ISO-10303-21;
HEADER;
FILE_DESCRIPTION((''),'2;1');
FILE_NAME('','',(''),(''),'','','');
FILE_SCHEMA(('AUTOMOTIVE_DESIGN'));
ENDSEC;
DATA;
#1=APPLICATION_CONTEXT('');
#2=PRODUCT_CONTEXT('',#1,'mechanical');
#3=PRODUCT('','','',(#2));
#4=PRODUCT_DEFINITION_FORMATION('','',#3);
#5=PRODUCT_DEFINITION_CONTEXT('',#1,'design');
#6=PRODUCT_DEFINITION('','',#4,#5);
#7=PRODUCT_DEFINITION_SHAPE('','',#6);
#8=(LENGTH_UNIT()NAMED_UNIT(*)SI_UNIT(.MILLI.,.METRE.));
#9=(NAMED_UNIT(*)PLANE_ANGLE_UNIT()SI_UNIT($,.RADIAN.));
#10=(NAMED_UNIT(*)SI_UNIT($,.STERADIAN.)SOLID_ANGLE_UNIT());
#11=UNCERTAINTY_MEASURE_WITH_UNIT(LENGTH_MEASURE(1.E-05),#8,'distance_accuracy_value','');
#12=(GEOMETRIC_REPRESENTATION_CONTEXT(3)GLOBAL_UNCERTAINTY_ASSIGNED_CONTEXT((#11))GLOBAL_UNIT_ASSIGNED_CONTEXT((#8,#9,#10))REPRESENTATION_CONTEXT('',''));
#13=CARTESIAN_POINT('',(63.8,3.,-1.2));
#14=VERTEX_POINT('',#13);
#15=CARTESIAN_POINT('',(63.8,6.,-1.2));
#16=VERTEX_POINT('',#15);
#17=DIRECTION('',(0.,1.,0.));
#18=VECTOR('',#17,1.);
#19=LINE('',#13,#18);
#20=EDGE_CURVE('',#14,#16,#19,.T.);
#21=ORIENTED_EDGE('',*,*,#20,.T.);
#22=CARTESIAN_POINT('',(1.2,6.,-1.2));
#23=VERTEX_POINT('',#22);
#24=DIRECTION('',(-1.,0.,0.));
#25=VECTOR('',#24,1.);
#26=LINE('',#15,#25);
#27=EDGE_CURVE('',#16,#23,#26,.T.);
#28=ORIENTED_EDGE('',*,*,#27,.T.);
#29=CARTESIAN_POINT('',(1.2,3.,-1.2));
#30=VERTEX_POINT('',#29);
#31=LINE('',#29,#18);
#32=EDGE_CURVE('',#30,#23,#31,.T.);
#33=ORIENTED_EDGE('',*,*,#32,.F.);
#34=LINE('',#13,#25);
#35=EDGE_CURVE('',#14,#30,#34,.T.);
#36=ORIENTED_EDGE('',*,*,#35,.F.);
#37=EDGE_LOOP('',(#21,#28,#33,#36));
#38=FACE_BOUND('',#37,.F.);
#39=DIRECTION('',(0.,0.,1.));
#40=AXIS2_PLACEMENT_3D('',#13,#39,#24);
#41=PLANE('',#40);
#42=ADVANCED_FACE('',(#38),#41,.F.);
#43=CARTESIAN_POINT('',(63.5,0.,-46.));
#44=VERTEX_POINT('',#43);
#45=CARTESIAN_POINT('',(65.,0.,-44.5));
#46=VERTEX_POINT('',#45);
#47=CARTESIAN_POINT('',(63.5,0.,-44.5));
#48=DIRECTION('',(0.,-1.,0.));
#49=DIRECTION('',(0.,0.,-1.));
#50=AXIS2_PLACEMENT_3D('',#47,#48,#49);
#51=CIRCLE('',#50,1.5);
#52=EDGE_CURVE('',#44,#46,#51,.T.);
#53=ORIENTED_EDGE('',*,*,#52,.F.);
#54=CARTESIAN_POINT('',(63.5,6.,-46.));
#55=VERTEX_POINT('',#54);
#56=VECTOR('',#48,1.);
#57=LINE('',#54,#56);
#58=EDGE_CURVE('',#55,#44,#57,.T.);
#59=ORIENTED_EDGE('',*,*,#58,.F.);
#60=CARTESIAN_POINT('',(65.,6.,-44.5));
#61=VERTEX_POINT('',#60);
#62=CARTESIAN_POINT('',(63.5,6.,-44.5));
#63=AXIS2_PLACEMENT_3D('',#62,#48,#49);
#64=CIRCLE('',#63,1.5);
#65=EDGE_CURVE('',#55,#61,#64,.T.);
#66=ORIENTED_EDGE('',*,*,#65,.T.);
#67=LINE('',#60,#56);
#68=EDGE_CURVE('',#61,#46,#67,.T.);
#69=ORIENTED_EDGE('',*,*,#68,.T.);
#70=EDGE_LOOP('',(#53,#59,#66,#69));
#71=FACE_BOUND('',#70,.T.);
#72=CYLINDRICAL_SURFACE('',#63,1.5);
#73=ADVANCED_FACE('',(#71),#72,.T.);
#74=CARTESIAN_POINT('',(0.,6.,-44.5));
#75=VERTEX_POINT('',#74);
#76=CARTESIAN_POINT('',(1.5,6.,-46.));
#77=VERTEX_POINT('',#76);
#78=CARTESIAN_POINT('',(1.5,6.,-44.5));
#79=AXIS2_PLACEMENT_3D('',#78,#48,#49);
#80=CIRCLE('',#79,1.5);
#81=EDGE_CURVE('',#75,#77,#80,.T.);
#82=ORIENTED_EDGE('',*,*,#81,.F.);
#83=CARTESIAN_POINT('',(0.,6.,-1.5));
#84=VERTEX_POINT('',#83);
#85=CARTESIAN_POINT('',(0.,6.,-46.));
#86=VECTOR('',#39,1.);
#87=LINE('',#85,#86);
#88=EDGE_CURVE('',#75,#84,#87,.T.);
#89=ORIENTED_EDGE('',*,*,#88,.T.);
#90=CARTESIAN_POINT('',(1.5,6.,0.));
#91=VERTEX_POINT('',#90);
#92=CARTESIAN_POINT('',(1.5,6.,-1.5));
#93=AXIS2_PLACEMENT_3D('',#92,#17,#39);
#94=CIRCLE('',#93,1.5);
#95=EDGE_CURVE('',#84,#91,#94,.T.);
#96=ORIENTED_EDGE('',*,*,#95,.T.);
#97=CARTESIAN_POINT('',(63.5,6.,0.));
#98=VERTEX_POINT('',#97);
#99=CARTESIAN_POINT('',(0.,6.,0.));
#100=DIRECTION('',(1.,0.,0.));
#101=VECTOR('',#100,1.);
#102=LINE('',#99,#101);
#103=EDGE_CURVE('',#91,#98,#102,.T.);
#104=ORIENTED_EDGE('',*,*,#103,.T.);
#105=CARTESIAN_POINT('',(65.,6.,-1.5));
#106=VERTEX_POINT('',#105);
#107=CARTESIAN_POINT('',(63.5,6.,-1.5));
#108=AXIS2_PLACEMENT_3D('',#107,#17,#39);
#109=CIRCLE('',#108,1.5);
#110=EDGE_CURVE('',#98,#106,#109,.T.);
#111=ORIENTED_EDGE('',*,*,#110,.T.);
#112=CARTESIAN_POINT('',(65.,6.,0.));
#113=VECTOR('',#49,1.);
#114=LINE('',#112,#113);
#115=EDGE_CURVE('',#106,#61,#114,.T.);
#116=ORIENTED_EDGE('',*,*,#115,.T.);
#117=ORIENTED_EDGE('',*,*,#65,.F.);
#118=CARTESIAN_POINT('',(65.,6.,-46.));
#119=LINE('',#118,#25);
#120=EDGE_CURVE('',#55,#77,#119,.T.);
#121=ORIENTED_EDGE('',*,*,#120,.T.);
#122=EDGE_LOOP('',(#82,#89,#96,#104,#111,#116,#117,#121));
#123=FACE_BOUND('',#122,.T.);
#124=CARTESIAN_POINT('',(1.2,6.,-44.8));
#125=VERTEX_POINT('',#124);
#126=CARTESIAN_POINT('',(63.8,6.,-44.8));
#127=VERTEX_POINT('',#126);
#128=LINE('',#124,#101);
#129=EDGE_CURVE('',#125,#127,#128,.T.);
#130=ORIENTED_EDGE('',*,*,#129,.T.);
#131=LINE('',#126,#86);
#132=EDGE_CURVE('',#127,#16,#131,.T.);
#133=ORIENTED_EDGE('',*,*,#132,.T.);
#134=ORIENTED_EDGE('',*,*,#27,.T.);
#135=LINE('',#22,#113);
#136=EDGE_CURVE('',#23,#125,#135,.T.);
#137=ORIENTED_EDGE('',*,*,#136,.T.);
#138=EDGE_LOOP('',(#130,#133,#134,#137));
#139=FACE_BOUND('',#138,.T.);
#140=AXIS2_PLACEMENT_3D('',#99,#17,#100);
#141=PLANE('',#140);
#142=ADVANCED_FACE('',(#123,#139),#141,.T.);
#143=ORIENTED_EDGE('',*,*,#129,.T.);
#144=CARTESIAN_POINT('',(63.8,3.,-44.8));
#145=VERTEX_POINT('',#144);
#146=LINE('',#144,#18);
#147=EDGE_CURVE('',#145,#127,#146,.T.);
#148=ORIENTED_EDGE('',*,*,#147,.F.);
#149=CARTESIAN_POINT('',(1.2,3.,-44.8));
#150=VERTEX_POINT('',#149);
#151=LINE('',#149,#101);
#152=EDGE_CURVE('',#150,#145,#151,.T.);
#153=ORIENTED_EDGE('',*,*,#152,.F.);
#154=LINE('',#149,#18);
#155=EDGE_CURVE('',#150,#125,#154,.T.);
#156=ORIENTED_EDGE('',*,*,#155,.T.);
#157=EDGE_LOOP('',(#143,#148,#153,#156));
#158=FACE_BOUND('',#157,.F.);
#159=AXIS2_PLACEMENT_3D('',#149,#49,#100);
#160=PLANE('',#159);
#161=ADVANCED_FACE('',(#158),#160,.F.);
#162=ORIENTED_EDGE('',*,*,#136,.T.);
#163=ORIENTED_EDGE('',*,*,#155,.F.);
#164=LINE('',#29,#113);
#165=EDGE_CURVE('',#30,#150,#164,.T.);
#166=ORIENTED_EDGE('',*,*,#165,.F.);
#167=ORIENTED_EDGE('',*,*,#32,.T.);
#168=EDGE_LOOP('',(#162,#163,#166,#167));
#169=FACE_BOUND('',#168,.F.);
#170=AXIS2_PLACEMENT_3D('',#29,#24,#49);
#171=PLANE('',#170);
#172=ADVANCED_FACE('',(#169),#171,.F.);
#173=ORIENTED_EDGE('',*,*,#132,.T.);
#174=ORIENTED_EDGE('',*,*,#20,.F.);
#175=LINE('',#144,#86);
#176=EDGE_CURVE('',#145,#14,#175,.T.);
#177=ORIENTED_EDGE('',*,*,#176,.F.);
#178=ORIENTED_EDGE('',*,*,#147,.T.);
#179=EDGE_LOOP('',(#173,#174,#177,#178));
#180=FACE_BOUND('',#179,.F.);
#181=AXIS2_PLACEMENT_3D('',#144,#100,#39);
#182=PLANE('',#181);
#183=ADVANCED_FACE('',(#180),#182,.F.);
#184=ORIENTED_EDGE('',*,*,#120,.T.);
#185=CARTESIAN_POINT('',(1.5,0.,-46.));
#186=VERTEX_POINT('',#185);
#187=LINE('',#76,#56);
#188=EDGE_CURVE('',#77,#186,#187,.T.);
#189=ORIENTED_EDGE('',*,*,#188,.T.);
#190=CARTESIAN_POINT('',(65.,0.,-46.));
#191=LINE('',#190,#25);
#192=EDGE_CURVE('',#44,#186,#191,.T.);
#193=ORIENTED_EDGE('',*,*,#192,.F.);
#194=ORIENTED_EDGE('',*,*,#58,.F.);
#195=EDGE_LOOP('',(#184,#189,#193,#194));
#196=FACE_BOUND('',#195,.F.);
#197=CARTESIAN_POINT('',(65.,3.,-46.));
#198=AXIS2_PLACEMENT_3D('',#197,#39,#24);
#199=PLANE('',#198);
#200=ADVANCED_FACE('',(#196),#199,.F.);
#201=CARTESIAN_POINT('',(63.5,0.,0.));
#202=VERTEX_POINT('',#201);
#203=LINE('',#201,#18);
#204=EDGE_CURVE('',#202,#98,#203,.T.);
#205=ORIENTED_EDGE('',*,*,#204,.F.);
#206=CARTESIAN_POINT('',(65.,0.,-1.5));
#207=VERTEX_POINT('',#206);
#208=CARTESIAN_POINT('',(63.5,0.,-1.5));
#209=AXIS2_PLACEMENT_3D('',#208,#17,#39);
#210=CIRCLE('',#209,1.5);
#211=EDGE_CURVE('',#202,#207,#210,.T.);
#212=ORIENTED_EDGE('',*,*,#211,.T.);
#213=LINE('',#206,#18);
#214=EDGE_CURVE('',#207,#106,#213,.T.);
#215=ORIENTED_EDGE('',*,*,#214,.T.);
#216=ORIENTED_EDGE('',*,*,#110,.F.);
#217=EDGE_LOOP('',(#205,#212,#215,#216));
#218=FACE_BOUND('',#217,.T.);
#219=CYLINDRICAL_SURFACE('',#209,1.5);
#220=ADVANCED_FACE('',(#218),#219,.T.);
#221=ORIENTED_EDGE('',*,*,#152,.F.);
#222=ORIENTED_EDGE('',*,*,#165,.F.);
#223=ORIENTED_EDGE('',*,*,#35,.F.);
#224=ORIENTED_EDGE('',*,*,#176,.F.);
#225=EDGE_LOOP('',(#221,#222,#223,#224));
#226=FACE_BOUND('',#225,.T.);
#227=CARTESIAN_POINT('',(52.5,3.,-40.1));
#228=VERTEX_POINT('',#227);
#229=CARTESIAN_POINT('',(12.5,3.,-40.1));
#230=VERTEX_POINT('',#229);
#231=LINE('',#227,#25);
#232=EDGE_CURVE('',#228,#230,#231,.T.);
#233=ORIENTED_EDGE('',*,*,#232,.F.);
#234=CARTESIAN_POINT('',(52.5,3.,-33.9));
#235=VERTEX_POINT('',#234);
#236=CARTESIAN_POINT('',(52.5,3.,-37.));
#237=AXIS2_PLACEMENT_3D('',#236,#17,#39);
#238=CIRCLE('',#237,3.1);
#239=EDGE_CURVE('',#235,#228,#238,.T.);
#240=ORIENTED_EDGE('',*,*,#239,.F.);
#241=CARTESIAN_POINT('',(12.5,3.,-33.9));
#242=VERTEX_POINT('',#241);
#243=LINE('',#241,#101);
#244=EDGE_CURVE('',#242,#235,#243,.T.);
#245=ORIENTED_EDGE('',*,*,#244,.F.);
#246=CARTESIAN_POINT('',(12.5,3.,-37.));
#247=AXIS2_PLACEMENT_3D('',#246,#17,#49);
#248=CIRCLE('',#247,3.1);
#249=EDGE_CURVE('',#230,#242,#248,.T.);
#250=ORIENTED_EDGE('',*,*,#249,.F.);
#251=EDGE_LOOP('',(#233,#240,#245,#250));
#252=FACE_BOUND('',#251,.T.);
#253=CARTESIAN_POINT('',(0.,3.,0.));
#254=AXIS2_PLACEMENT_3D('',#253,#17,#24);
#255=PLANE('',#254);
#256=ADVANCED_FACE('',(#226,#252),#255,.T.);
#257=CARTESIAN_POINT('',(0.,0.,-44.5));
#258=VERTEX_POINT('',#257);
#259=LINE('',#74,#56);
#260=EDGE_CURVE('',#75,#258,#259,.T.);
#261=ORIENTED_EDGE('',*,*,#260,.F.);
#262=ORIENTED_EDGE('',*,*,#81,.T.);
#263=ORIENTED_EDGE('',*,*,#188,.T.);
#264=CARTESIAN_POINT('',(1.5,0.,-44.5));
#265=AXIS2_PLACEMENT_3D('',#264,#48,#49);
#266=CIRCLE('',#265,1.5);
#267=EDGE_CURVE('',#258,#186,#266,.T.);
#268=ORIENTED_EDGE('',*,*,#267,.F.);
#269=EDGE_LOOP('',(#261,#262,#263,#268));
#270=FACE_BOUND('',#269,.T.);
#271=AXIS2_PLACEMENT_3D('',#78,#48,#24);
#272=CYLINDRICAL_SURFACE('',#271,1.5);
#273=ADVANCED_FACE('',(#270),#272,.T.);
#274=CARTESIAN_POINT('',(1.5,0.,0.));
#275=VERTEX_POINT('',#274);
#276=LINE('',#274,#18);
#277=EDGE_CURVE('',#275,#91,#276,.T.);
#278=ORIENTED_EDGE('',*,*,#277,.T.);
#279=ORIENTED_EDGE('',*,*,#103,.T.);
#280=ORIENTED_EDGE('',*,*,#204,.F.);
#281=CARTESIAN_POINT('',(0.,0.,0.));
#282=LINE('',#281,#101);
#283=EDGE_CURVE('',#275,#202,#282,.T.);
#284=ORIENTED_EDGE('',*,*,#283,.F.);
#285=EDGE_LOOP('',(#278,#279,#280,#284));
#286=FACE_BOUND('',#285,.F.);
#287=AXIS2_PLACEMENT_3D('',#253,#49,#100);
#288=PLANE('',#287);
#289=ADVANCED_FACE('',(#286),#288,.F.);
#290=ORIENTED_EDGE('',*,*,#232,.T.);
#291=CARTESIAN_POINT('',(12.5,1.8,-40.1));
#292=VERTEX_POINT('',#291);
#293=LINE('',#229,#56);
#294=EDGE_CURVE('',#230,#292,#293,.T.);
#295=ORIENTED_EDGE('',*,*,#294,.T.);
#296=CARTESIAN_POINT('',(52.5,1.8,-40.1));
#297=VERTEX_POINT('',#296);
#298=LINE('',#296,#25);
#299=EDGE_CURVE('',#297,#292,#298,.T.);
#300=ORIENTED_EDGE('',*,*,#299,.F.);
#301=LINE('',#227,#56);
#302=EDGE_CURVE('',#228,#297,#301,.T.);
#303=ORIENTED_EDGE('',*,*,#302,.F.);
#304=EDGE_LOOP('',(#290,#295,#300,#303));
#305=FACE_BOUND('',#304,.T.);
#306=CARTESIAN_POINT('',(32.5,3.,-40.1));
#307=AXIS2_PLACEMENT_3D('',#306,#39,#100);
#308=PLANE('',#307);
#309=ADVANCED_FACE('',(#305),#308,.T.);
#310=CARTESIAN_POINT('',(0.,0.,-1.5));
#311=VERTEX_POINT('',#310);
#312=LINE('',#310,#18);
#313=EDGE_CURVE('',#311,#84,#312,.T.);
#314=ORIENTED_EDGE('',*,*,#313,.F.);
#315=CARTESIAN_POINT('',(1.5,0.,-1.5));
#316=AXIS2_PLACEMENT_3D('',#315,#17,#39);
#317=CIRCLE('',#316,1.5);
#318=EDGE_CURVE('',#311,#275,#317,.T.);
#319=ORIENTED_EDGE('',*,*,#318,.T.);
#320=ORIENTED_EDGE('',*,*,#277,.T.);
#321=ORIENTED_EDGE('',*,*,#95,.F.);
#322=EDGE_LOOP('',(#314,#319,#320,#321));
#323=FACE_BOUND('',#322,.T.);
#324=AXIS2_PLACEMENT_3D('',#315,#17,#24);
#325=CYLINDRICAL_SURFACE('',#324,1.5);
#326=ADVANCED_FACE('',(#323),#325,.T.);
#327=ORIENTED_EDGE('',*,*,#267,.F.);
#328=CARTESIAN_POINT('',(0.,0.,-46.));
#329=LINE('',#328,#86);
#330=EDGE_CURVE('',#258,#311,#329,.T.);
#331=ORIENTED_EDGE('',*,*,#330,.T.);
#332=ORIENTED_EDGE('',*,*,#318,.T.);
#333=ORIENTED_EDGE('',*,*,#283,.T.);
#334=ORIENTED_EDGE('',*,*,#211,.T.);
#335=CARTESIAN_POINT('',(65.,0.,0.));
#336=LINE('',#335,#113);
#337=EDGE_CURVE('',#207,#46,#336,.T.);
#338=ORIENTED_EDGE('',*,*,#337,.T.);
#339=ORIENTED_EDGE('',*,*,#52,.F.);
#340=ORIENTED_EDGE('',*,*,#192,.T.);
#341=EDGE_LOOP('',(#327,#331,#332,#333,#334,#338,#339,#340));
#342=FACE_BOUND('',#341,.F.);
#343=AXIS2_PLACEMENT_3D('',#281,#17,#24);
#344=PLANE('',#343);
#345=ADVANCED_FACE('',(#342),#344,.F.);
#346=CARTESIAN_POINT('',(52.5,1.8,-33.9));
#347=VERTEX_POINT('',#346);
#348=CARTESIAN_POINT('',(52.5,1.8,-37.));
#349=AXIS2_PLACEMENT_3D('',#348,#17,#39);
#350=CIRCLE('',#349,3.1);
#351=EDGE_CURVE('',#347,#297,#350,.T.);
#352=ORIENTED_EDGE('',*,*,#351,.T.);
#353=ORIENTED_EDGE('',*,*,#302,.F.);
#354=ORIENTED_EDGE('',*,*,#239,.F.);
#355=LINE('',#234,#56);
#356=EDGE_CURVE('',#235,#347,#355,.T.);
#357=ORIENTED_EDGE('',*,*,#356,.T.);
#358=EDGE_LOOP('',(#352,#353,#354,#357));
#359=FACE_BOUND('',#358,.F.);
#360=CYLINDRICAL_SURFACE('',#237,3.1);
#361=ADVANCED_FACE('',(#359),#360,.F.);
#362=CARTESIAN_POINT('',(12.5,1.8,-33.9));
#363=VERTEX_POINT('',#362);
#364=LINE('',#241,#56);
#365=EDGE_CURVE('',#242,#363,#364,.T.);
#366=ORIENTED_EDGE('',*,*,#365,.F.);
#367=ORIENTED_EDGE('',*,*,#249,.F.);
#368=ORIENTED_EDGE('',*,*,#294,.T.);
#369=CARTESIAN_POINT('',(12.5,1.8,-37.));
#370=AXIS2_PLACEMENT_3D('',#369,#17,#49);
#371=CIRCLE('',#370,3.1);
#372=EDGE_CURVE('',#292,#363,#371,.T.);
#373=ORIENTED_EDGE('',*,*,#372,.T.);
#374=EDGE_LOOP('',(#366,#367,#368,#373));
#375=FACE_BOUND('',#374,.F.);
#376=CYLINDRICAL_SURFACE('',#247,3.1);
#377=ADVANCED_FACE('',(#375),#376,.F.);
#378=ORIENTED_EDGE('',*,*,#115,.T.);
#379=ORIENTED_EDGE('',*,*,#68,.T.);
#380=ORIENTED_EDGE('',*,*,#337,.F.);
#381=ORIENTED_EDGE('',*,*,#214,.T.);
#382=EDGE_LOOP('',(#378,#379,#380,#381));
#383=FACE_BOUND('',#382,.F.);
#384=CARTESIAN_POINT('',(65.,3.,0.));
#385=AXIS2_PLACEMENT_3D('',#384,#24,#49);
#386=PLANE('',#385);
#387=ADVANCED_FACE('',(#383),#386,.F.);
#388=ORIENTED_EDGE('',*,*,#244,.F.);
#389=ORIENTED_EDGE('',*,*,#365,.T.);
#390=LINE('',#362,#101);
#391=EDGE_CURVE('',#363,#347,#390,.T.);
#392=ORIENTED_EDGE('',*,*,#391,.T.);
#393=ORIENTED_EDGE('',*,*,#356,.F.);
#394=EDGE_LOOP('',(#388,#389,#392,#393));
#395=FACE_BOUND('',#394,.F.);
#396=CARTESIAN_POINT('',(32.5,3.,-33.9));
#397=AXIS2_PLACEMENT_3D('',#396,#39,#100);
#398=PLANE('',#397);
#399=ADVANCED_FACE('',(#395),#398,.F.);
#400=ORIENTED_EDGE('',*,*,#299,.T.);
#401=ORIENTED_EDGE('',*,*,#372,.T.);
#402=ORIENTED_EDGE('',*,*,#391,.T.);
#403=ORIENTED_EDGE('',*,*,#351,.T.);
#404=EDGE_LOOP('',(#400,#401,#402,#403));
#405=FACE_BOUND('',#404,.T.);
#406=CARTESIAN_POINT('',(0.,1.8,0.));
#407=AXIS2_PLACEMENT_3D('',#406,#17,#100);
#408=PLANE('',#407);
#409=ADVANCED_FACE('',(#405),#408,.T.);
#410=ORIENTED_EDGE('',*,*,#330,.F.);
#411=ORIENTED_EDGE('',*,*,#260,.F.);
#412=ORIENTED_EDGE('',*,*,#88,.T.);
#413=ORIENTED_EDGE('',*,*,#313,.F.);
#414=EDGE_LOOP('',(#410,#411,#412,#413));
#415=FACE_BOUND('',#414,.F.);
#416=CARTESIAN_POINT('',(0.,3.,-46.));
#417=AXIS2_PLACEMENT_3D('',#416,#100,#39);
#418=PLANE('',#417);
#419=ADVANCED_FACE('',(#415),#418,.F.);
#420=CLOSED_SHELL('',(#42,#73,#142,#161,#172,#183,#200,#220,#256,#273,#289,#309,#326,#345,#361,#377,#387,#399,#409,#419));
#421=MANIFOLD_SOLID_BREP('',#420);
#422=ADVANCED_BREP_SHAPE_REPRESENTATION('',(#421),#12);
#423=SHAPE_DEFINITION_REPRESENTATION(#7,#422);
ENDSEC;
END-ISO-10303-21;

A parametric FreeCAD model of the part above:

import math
import FreeCAD as App
import Part
import Sketcher

V = App.Vector


def edges_at(feature, points):
    """Names of the edges that pass closest to the given points."""
    edges = feature.Shape.Edges
    near = lambda p: min(range(len(edges)), key=lambda i: edges[i].distToShape(Part.Vertex(*p))[0])
    return sorted({f"Edge{near(p) + 1}" for p in points})

doc = App.newDocument("Part")
params = doc.addObject("Spreadsheet::Sheet", "Params")
for row, (alias, value) in enumerate([
    ("sketch1_width", "65 mm"),
    ("sketch1_height", "46 mm"),
    ("pad1_length", "3 mm"),
    ("sketch2_radius", "3.1 mm"),
    ("sketch2_width", "40 mm"),
    ("pocket1_length", "1.2 mm"),
    ("sketch3_width", "65 mm"),
    ("sketch3_height", "46 mm"),
    ("pad2_length", "3 mm"),
    ("fillet_radius", "1.5 mm"),
], start=1):
    params.set(f"A{row}", alias)
    params.set(f"B{row}", "=" + value)
    params.setAlias(f"B{row}", alias)

body = doc.addObject("PartDesign::Body", "Body")

# Sketch on XZ plane
sketch1 = body.newObject("Sketcher::SketchObject", "Sketch")
sketch1.AttachmentSupport = (doc.getObject("XZ_Plane"), [""])
sketch1.MapMode = "FlatFace"
sketch1.addGeometry([
    Part.LineSegment(V(0, -46, 0), V(0, 0, 0)),
    Part.LineSegment(V(0, 0, 0), V(65, 0, 0)),
    Part.LineSegment(V(65, 0, 0), V(65, -46, 0)),
    Part.LineSegment(V(65, -46, 0), V(0, -46, 0)),
], False)
sketch1.addConstraint([
    Sketcher.Constraint("Coincident", 0, 2, 1, 1),
    Sketcher.Constraint("Coincident", 1, 2, 2, 1),
    Sketcher.Constraint("Coincident", 2, 2, 3, 1),
    Sketcher.Constraint("Coincident", 3, 2, 0, 1),
    Sketcher.Constraint("Vertical", 0),
    Sketcher.Constraint("Horizontal", 1),
    Sketcher.Constraint("Vertical", 2),
    Sketcher.Constraint("Horizontal", 3),
    Sketcher.Constraint("Coincident", 0, 2, -1, 1),
    Sketcher.Constraint("DistanceX", 1, 1, 1, 2, 65.0),
    Sketcher.Constraint("DistanceY", 0, 1, 0, 2, 46.0),
])
sketch1.setExpression("Constraints[9]", "Params.sketch1_width")
sketch1.setExpression("Constraints[10]", "Params.sketch1_height")
pad1 = body.newObject("PartDesign::Pad", "Pad")
pad1.Profile = sketch1
pad1.setExpression("Length", "Params.pad1_length")
pad1.Reversed = True

# Sketch on XZ plane
sketch2 = body.newObject("Sketcher::SketchObject", "Sketch001")
sketch2.AttachmentSupport = (doc.getObject("XZ_Plane"), [""])
sketch2.MapMode = "FlatFace"
sketch2.AttachmentOffset = App.Placement(V(0, 0, -3), App.Rotation())
sketch2.addGeometry([
    Part.ArcOfCircle(Part.Circle(V(52.5, -37, 0), V(0, 0, 1), 3.1), math.radians(-90), math.radians(90)),
    Part.LineSegment(V(52.5, -40.1, 0), V(12.5, -40.1, 0)),
    Part.ArcOfCircle(Part.Circle(V(12.5, -37, 0), V(0, 0, 1), 3.1), math.radians(90), math.radians(270)),
    Part.LineSegment(V(12.5, -33.9, 0), V(52.5, -33.9, 0)),
], False)
sketch2.addConstraint([
    Sketcher.Constraint("Tangent", 0, 1, 1, 1),
    Sketcher.Constraint("Tangent", 1, 2, 2, 2),
    Sketcher.Constraint("Tangent", 2, 1, 3, 1),
    Sketcher.Constraint("Tangent", 3, 2, 0, 2),
    Sketcher.Constraint("Horizontal", 1),
    Sketcher.Constraint("Horizontal", 3),
    Sketcher.Constraint("Radius", 0, 3.1),
    Sketcher.Constraint("DistanceX", 1, 2, 1, 1, 40.0),
    Sketcher.Constraint("DistanceY", 0, 3, -1, 1, 37.0),
    Sketcher.Constraint("DistanceX", -1, 1, 0, 3, 52.5),
])
sketch2.setExpression("Constraints[6]", "Params.sketch2_radius")
sketch2.setExpression("Constraints[7]", "Params.sketch2_width")
pocket1 = body.newObject("PartDesign::Pocket", "Pocket")
pocket1.Profile = sketch2
pocket1.setExpression("Length", "Params.pocket1_length")
pocket1.Reversed = True

# Sketch on XZ plane
sketch3 = body.newObject("Sketcher::SketchObject", "Sketch002")
sketch3.AttachmentSupport = (doc.getObject("XZ_Plane"), [""])
sketch3.MapMode = "FlatFace"
sketch3.AttachmentOffset = App.Placement(V(0, 0, -3), App.Rotation())
sketch3.addGeometry([
    Part.LineSegment(V(0, -46, 0), V(0, 0, 0)),  # 0
    Part.LineSegment(V(0, 0, 0), V(65, 0, 0)),  # 1
    Part.LineSegment(V(65, 0, 0), V(65, -46, 0)),  # 2
    Part.LineSegment(V(65, -46, 0), V(0, -46, 0)),  # 3
    Part.LineSegment(V(1, -1, 0), V(1, -45, 0)),  # 4
    Part.LineSegment(V(1, -45, 0), V(64, -45, 0)),  # 5
    Part.LineSegment(V(64, -45, 0), V(64, -1, 0)),  # 6
    Part.LineSegment(V(64, -1, 0), V(1, -1, 0)),  # 7
], False)
sketch3.addConstraint([
    Sketcher.Constraint("Coincident", 0, 2, 1, 1),
    Sketcher.Constraint("Coincident", 1, 2, 2, 1),
    Sketcher.Constraint("Coincident", 2, 2, 3, 1),
    Sketcher.Constraint("Coincident", 3, 2, 0, 1),
    Sketcher.Constraint("Coincident", 4, 2, 5, 1),
    Sketcher.Constraint("Coincident", 5, 2, 6, 1),
    Sketcher.Constraint("Coincident", 6, 2, 7, 1),
    Sketcher.Constraint("Coincident", 7, 2, 4, 1),
    Sketcher.Constraint("Vertical", 0),
    Sketcher.Constraint("Horizontal", 1),
    Sketcher.Constraint("Vertical", 2),
    Sketcher.Constraint("Horizontal", 3),
    Sketcher.Constraint("Vertical", 4),
    Sketcher.Constraint("Horizontal", 5),
    Sketcher.Constraint("Vertical", 6),
    Sketcher.Constraint("Horizontal", 7),
    Sketcher.Constraint("Coincident", 0, 2, -1, 1),
    Sketcher.Constraint("DistanceX", -1, 1, 4, 2, 1.2),
    Sketcher.Constraint("DistanceY", 6, 2, -1, 1, 1.2),
    Sketcher.Constraint("DistanceY", 3, 2, 4, 2, 1.2),
    Sketcher.Constraint("DistanceX", 5, 2, 2, 2, 1.2),
    Sketcher.Constraint("DistanceX", 1, 1, 1, 2, 65.0),
    Sketcher.Constraint("DistanceY", 0, 1, 0, 2, 46.0),
])
sketch3.setExpression("Constraints[21]", "Params.sketch3_width")
sketch3.setExpression("Constraints[22]", "Params.sketch3_height")
pad2 = body.newObject("PartDesign::Pad", "Pad001")
pad2.Profile = sketch3
pad2.setExpression("Length", "Params.pad2_length")
pad2.Reversed = True
doc.recompute()

fillet = body.newObject("PartDesign::Fillet", "Fillet")
fillet.Base = (pad2, edges_at(pad2, [
    (0, 3, 0),
    (65, 3, 0),
    (65, 3, -46),
    (0, 3, -46),
]))
fillet.setExpression("Radius", "Params.fillet_radius")

doc.recompute()
